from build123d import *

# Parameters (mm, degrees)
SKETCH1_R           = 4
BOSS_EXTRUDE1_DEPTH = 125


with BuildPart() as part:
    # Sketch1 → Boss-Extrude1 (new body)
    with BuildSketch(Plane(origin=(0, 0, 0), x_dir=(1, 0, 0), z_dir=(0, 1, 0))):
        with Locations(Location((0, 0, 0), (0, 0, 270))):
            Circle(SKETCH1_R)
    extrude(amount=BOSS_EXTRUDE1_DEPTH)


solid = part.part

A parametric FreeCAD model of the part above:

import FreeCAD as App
import Part
import Sketcher
from FreeCAD import Vector

doc = App.newDocument("Part")
body = doc.addObject("PartDesign::Body", "Body")

# Sketch on XZ plane
sketch1 = body.newObject("Sketcher::SketchObject", "Sketch")
sketch1.AttachmentSupport = (doc.getObject("XZ_Plane"), [""])
sketch1.MapMode = "FlatFace"
sketch1.addGeometry(Part.Circle(Vector(0, 0, 0), Vector(0, 0, 1), 4), False)
sketch1.addConstraint([
    Sketcher.Constraint("Coincident", 0, 3, -1, 1),
    Sketcher.Constraint("Diameter", 0, 8.0),
])
pad1 = body.newObject("PartDesign::Pad", "Pad")
pad1.Profile = sketch1
pad1.Length = 125
pad1.Reversed = True

doc.recompute()
